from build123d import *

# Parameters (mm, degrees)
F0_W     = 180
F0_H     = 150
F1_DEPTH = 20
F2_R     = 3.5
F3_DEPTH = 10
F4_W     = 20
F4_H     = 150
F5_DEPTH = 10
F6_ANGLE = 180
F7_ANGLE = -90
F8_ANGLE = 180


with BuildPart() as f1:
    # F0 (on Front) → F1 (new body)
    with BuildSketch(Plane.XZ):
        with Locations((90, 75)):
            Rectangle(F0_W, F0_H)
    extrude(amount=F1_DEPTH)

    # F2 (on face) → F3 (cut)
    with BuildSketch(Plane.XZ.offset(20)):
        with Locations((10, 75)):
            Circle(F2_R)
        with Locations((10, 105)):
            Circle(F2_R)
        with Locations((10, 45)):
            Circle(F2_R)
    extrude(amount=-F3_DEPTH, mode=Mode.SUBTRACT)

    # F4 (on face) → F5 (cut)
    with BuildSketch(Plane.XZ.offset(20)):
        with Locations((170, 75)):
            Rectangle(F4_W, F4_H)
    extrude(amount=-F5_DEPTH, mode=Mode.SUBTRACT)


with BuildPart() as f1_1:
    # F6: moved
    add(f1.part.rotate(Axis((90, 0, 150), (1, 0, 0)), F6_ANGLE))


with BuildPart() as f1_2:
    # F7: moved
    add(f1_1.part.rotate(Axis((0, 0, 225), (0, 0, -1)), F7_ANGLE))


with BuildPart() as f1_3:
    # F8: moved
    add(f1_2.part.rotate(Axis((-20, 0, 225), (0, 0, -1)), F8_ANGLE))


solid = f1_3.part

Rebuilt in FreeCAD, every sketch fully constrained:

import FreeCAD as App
import Part
import Sketcher
from FreeCAD import Vector


def add_polygon(sketch, points):
    """Adds a closed chain of lines whose ends are joined by coincident constraints."""
    first, n = sketch.GeometryCount, len(points)
    for a, b in zip(points, points[1:] + points[:1]):
        sketch.addGeometry(Part.LineSegment(App.Vector(*a, 0), App.Vector(*b, 0)), False)
    for i in range(n):
        sketch.addConstraint(Sketcher.Constraint("Coincident", first + i, 2, first + (i + 1) % n, 1))

doc = App.newDocument("Part")
body = doc.addObject("PartDesign::Body", "Body")

sketch1 = body.newObject("Sketcher::SketchObject", "Sketch")
sketch1.AttachmentSupport = (doc.getObject("XZ_Plane"), [""])
sketch1.MapMode = "FlatFace"
add_polygon(sketch1, [(0, 150), (0, 0), (180, 0), (180, 150)])
sketch1.addConstraint([
    Sketcher.Constraint("Vertical", 0),
    Sketcher.Constraint("Horizontal", 1),
    Sketcher.Constraint("Vertical", 2),
    Sketcher.Constraint("Horizontal", 3),
    Sketcher.Constraint("Coincident", 0, 2, -1, 1),
    Sketcher.Constraint("DistanceX", 1, 1, 1, 2, 180.0),
    Sketcher.Constraint("DistanceY", 0, 2, 0, 1, 150.0),
])
pad1 = body.newObject("PartDesign::Pad", "Pad")
pad1.Profile = sketch1
pad1.Length = 20

sketch2 = body.newObject("Sketcher::SketchObject", "Sketch001")
sketch2.AttachmentSupport = (doc.getObject("XZ_Plane"), [""])
sketch2.MapMode = "FlatFace"
sketch2.AttachmentOffset = App.Placement(Vector(0, 0, 20), App.Rotation())
sketch2.addGeometry([
    Part.Circle(Vector(10, 75, 0), Vector(0, 0, 1), 3.5),
    Part.Circle(Vector(10, 105, 0), Vector(0, 0, 1), 3.5),
    Part.Circle(Vector(10, 45, 0), Vector(0, 0, 1), 3.5),
], False)
sketch2.addConstraint([
    Sketcher.Constraint("Equal", 0, 1),
    Sketcher.Constraint("Equal", 1, 2),
    Sketcher.Constraint("Vertical", 0, 3, 1, 3),
    Sketcher.Constraint("Vertical", 1, 3, 2, 3),
    Sketcher.Constraint("Diameter", 0, 7.0),
    Sketcher.Constraint("DistanceX", -1, 1, 0, 3, 10.0),
    Sketcher.Constraint("DistanceY", -1, 1, 0, 3, 75.0),
    Sketcher.Constraint("DistanceY", -1, 1, 1, 3, 105.0),
    Sketcher.Constraint("DistanceY", -1, 1, 2, 3, 45.0),
])
pocket1 = body.newObject("PartDesign::Pocket", "Pocket")
pocket1.Profile = sketch2
pocket1.Length = 10

sketch3 = body.newObject("Sketcher::SketchObject", "Sketch002")
sketch3.AttachmentSupport = (doc.getObject("XZ_Plane"), [""])
sketch3.MapMode = "FlatFace"
sketch3.AttachmentOffset = App.Placement(Vector(0, 0, 20), App.Rotation())
add_polygon(sketch3, [(160, 150), (160, 0), (180, 0), (180, 150)])
sketch3.addConstraint([
    Sketcher.Constraint("Vertical", 0),
    Sketcher.Constraint("Horizontal", 1),
    Sketcher.Constraint("Vertical", 2),
    Sketcher.Constraint("Horizontal", 3),
    Sketcher.Constraint("PointOnObject", 0, 2, -1),
    Sketcher.Constraint("DistanceX", 1, 1, 1, 2, 20.0),
    Sketcher.Constraint("DistanceY", 0, 2, 0, 1, 150.0),
    Sketcher.Constraint("DistanceX", -1, 1, 0, 2, 160.0),
])
pocket2 = body.newObject("PartDesign::Pocket", "Pocket001")
pocket2.Profile = sketch3
pocket2.Length = 10
body2 = doc.addObject("PartDesign::Body", "Body001")
doc.recompute()

body.Placement = App.Placement(Vector(0, 0, 300), App.Rotation(Vector(1, 0, 0), 180))
boolean = body2.newObject("PartDesign::Boolean", "Boolean")
boolean.Type = "Fuse"
boolean.addObjects([body])
body3 = doc.addObject("PartDesign::Body", "Body002")
doc.recompute()

body2.Placement = App.Placement(Vector(0, 0, 0), App.Rotation(Vector(0, 0, -1), 270))
boolean2 = body3.newObject("PartDesign::Boolean", "Boolean001")
boolean2.Type = "Fuse"
boolean2.addObjects([body2])
body4 = doc.addObject("PartDesign::Body", "Body003")
doc.recompute()

body3.Placement = App.Placement(Vector(-40, 0, 0), App.Rotation(Vector(0, 0, -1), 180))
boolean3 = body4.newObject("PartDesign::Boolean", "Boolean002")
boolean3.Type = "Fuse"
boolean3.addObjects([body3])

doc.recompute()
